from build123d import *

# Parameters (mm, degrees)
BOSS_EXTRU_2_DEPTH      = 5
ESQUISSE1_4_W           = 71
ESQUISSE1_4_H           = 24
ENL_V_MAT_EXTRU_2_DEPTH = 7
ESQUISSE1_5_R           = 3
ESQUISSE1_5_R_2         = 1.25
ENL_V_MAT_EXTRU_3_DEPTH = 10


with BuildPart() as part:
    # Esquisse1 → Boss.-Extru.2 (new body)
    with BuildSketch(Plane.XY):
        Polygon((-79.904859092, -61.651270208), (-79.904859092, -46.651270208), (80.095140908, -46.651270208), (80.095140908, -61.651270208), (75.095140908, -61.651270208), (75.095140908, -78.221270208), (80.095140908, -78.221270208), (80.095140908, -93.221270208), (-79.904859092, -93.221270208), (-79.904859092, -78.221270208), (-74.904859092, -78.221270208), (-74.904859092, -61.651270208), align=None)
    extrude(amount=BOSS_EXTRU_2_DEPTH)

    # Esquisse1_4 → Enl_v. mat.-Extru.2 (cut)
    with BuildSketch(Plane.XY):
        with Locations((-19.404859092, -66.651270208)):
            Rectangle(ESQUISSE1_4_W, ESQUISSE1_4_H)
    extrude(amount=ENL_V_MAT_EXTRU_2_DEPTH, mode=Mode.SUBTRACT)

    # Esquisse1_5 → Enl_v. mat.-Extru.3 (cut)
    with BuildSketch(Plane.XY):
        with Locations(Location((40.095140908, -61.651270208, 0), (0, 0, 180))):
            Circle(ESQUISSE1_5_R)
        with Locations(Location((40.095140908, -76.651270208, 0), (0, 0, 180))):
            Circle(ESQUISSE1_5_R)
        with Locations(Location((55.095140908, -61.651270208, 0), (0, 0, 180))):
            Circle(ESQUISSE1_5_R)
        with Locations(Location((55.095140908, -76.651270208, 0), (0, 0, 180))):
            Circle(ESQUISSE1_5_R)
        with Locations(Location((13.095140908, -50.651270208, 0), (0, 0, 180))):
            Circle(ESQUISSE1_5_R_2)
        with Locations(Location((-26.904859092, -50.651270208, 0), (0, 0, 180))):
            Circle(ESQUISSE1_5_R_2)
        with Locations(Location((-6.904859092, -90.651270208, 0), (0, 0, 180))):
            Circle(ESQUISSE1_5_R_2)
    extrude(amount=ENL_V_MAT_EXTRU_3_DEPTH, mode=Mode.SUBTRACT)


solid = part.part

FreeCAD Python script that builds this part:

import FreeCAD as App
import Part
import Sketcher

V = App.Vector
Q = App.Units.Quantity


def add_polygon(sketch, points):
    """Adds a closed chain of lines whose ends are joined by coincident constraints."""
    first, n = sketch.GeometryCount, len(points)
    for a, b in zip(points, points[1:] + points[:1]):
        sketch.addGeometry(Part.LineSegment(App.Vector(*a, 0), App.Vector(*b, 0)), False)
    for i in range(n):
        sketch.addConstraint(Sketcher.Constraint("Coincident", first + i, 2, first + (i + 1) % n, 1))

doc = App.newDocument("Part")
body = doc.addObject("PartDesign::Body", "Body")

sketch1 = body.newObject("Sketcher::SketchObject", "Sketch")
sketch1.AttachmentSupport = (doc.getObject("XY_Plane"), [""])
sketch1.MapMode = "FlatFace"
add_polygon(sketch1, [(-79.904859, -46.65127), (-79.904859, -61.65127), (-74.904859, -61.65127), (-74.904859, -78.22127), (-79.904859, -78.22127), (-79.904859, -93.22127), (80.095141, -93.22127), (80.095141, -78.22127), (75.095141, -78.22127), (75.095141, -61.65127), (80.095141, -61.65127), (80.095141, -46.65127)])
sketch1.addConstraint([
    Sketcher.Constraint("Vertical", 0),
    Sketcher.Constraint("Horizontal", 1),
    Sketcher.Constraint("Vertical", 2),
    Sketcher.Constraint("Horizontal", 3),
    Sketcher.Constraint("Vertical", 4),
    Sketcher.Constraint("Horizontal", 5),
    Sketcher.Constraint("Vertical", 6),
    Sketcher.Constraint("Horizontal", 7),
    Sketcher.Constraint("Vertical", 8),
    Sketcher.Constraint("Horizontal", 9),
    Sketcher.Constraint("Vertical", 10),
    Sketcher.Constraint("Horizontal", 11),
    Sketcher.Constraint("Horizontal", 3, 2, 6, 2),
    Sketcher.Constraint("Horizontal", 1, 2, 8, 2),
    Sketcher.Constraint("Vertical", 0, 2, 3, 2),
    Sketcher.Constraint("Vertical", 6, 2, 9, 2),
    Sketcher.Constraint("Equal", 3, 7),
    Sketcher.Constraint("Equal", 0, 4),
    Sketcher.Constraint("DistanceX", 1, 1, 1, 2, Q("5 mm")),
    Sketcher.Constraint("DistanceX", 5, 1, 5, 2, Q("160 mm")),
    Sketcher.Constraint("DistanceY", 0, 2, 0, 1, Q("15 mm")),
    Sketcher.Constraint("DistanceY", 2, 2, 2, 1, Q("16.57 mm")),
    Sketcher.Constraint("DistanceX", 0, 2, -1, 1, Q("79.904859 mm")),
    Sketcher.Constraint("DistanceY", 0, 2, -1, 1, Q("61.65127 mm")),
])
pad1 = body.newObject("PartDesign::Pad", "Pad")
pad1.Profile = sketch1
pad1.Length = 5

sketch2 = body.newObject("Sketcher::SketchObject", "Sketch001")
sketch2.AttachmentSupport = (doc.getObject("XY_Plane"), [""])
sketch2.MapMode = "FlatFace"
add_polygon(sketch2, [(-54.904859, -54.65127), (-54.904859, -78.65127), (16.095141, -78.65127), (16.095141, -54.65127)])
sketch2.addConstraint([
    Sketcher.Constraint("Vertical", 0),
    Sketcher.Constraint("Horizontal", 1),
    Sketcher.Constraint("Vertical", 2),
    Sketcher.Constraint("Horizontal", 3),
    Sketcher.Constraint("DistanceX", 1, 1, 1, 2, Q("71 mm")),
    Sketcher.Constraint("DistanceY", 0, 2, 0, 1, Q("24 mm")),
    Sketcher.Constraint("DistanceX", 0, 2, -1, 1, Q("54.904859 mm")),
    Sketcher.Constraint("DistanceY", 0, 2, -1, 1, Q("78.65127 mm")),
])
pocket1 = body.newObject("PartDesign::Pocket", "Pocket")
pocket1.Profile = sketch2
pocket1.Length = 7
pocket1.Reversed = True

sketch3 = body.newObject("Sketcher::SketchObject", "Sketch002")
sketch3.AttachmentSupport = (doc.getObject("XY_Plane"), [""])
sketch3.MapMode = "FlatFace"
sketch3.addGeometry([
    Part.Circle(V(40.095141, -61.65127, 0), V(0, 0, 1), 3),
    Part.Circle(V(40.095141, -76.65127, 0), V(0, 0, 1), 3),
    Part.Circle(V(55.095141, -61.65127, 0), V(0, 0, 1), 3),
    Part.Circle(V(55.095141, -76.65127, 0), V(0, 0, 1), 3),
    Part.Circle(V(13.095141, -50.65127, 0), V(0, 0, 1), 1.25),
    Part.Circle(V(-26.904859, -50.65127, 0), V(0, 0, 1), 1.25),
    Part.Circle(V(-6.904859, -90.65127, 0), V(0, 0, 1), 1.25),
], False)
sketch3.addConstraint([
    Sketcher.Constraint("Equal", 0, 1),
    Sketcher.Constraint("Equal", 1, 2),
    Sketcher.Constraint("Equal", 2, 3),
    Sketcher.Constraint("Equal", 4, 5),
    Sketcher.Constraint("Equal", 5, 6),
    Sketcher.Constraint("Horizontal", 0, 3, 2, 3),
    Sketcher.Constraint("Horizontal", 1, 3, 3, 3),
    Sketcher.Constraint("Horizontal", 4, 3, 5, 3),
    Sketcher.Constraint("Vertical", 0, 3, 1, 3),
    Sketcher.Constraint("Vertical", 2, 3, 3, 3),
    Sketcher.Constraint("Diameter", 0, Q("6 mm")),
    Sketcher.Constraint("Diameter", 4, Q("2.5 mm")),
    Sketcher.Constraint("DistanceY", 1, 3, 0, 3, Q("15 mm")),
    Sketcher.Constraint("DistanceX", 0, 3, 2, 3, Q("15 mm")),
    Sketcher.Constraint("DistanceX", 4, 3, 0, 3, Q("27 mm")),
    Sketcher.Constraint("DistanceY", 0, 3, 4, 3, Q("11 mm")),
    Sketcher.Constraint("DistanceX", 5, 3, 4, 3, Q("40 mm")),
    Sketcher.Constraint("DistanceX", 6, 3, 4, 3, Q("20 mm")),
    Sketcher.Constraint("DistanceY", 6, 3, 4, 3, Q("40 mm")),
    Sketcher.Constraint("DistanceX", -1, 1, 0, 3, Q("40.095141 mm")),
    Sketcher.Constraint("DistanceY", 0, 3, -1, 1, Q("61.65127 mm")),
])
pocket2 = body.newObject("PartDesign::Pocket", "Pocket001")
pocket2.Profile = sketch3
pocket2.Length = 10
pocket2.Reversed = True

doc.recompute()
